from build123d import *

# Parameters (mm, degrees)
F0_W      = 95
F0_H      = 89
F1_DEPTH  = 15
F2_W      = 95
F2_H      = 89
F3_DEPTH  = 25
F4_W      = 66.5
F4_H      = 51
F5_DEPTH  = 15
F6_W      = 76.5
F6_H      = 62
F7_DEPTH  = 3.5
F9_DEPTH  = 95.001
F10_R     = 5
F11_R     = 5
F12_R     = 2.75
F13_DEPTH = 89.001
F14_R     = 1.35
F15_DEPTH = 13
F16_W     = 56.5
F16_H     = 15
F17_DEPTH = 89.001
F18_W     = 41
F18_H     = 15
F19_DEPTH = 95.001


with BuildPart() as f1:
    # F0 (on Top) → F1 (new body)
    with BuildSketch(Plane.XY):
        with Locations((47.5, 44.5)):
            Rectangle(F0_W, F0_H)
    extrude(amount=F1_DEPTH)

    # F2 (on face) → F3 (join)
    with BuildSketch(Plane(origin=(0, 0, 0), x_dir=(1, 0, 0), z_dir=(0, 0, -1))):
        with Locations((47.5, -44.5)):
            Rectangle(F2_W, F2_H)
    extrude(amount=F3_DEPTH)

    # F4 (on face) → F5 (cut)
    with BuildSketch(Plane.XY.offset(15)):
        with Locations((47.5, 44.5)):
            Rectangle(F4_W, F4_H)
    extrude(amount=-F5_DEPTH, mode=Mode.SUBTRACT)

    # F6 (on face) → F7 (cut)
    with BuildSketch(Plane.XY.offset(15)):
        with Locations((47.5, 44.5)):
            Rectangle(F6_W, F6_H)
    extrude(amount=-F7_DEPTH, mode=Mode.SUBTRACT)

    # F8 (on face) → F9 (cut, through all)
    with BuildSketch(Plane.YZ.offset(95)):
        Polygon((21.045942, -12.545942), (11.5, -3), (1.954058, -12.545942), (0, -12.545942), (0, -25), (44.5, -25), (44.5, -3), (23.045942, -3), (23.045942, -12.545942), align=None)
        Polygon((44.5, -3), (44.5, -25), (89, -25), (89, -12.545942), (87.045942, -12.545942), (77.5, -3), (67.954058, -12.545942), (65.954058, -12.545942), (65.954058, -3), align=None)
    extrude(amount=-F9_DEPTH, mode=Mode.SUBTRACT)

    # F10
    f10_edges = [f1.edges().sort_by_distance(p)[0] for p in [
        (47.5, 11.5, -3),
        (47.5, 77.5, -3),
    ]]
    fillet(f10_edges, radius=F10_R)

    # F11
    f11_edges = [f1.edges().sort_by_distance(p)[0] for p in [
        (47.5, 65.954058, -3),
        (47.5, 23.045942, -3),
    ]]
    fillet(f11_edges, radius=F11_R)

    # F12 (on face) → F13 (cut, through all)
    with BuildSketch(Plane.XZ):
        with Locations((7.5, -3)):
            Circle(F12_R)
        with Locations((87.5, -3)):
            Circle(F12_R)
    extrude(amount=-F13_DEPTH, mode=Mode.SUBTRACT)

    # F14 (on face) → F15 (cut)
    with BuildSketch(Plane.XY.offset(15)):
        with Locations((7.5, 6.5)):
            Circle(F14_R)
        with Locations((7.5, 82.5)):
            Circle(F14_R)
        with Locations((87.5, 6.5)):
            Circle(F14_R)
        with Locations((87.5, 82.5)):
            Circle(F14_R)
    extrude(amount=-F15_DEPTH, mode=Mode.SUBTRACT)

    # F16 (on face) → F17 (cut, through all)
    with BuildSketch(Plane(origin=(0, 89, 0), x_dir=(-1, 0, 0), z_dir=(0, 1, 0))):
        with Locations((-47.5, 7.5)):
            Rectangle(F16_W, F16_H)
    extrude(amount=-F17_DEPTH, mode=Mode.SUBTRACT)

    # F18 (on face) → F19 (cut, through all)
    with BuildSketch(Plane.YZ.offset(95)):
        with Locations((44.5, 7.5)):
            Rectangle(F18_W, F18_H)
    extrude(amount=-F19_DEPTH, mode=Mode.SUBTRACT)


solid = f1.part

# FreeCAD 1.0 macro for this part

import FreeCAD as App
import Part
import Sketcher

V = App.Vector
Q = App.Units.Quantity


def edges_at(feature, points):
    """Names of the edges that pass closest to the given points."""
    edges = feature.Shape.Edges
    near = lambda p: min(range(len(edges)), key=lambda i: edges[i].distToShape(Part.Vertex(*p))[0])
    return sorted({f"Edge{near(p) + 1}" for p in points})


def add_polygon(sketch, points):
    """Adds a closed chain of lines whose ends are joined by coincident constraints."""
    first, n = sketch.GeometryCount, len(points)
    for a, b in zip(points, points[1:] + points[:1]):
        sketch.addGeometry(Part.LineSegment(App.Vector(*a, 0), App.Vector(*b, 0)), False)
    for i in range(n):
        sketch.addConstraint(Sketcher.Constraint("Coincident", first + i, 2, first + (i + 1) % n, 1))

doc = App.newDocument("Part")
body = doc.addObject("PartDesign::Body", "Body")

# Sketch on XY plane
sketch1 = doc.addObject("Sketcher::SketchObject", "Sketch")
body.addObject(sketch1)
sketch1.AttachmentSupport = (doc.XY_Plane, [""])
sketch1.MapMode = "FlatFace"
add_polygon(sketch1, [(0, 89), (0, 0), (95, 0), (95, 89)])  # lines 0-3
sketch1.addConstraint([
    Sketcher.Constraint("Vertical", 0),
    Sketcher.Constraint("Horizontal", 1),
    Sketcher.Constraint("Vertical", 2),
    Sketcher.Constraint("Horizontal", 3),
    Sketcher.Constraint("Coincident", 0, 2, -1, 1),
    Sketcher.Constraint("DistanceX", 1, 1, 1, 2, Q("95 mm")),
    Sketcher.Constraint("DistanceY", 0, 2, 0, 1, Q("89 mm")),
])
pad1 = doc.addObject("PartDesign::Pad", "Pad")
body.addObject(pad1)
pad1.Profile = sketch1
pad1.Length = 15

# Sketch on XY plane
sketch2 = doc.addObject("Sketcher::SketchObject", "Sketch001")
body.addObject(sketch2)
sketch2.AttachmentSupport = (doc.XY_Plane, [""])
sketch2.MapMode = "FlatFace"
add_polygon(sketch2, [(0, 0), (0, 89), (95, 89), (95, 0)])  # lines 0-3
sketch2.addConstraint([
    Sketcher.Constraint("Vertical", 0),
    Sketcher.Constraint("Horizontal", 1),
    Sketcher.Constraint("Vertical", 2),
    Sketcher.Constraint("Horizontal", 3),
    Sketcher.Constraint("Coincident", 3, 2, -1, 1),
    Sketcher.Constraint("DistanceX", 1, 1, 1, 2, Q("95 mm")),
    Sketcher.Constraint("DistanceY", 0, 1, 0, 2, Q("89 mm")),
])
pad2 = doc.addObject("PartDesign::Pad", "Pad001")
body.addObject(pad2)
pad2.Profile = sketch2
pad2.Length = 25
pad2.Reversed = True

# Sketch on XY plane
sketch3 = doc.addObject("Sketcher::SketchObject", "Sketch002")
body.addObject(sketch3)
sketch3.AttachmentSupport = (doc.XY_Plane, [""])
sketch3.MapMode = "FlatFace"
sketch3.AttachmentOffset = App.Placement(V(0, 0, 15), App.Rotation())
add_polygon(sketch3, [(14, 70), (14, 19), (81, 19), (81, 70)])  # lines 0-3
sketch3.addConstraint([
    Sketcher.Constraint("Vertical", 0),
    Sketcher.Constraint("Horizontal", 1),
    Sketcher.Constraint("Vertical", 2),
    Sketcher.Constraint("Horizontal", 3),
    Sketcher.Constraint("DistanceY", 0, 2, 0, 1, Q("51 mm")),
    Sketcher.Constraint("DistanceX", 1, 1, 1, 2, Q("66.5 mm")),
    Sketcher.Constraint("DistanceY", -1, 1, 0, 2, Q("19 mm")),
    Sketcher.Constraint("DistanceX", -1, 1, 0, 2, Q("14.25 mm")),
])
pocket1 = doc.addObject("PartDesign::Pocket", "Pocket")
body.addObject(pocket1)
pocket1.Profile = sketch3
pocket1.Length = 15

# Sketch on XY plane
sketch4 = doc.addObject("Sketcher::SketchObject", "Sketch003")
body.addObject(sketch4)
sketch4.AttachmentSupport = (doc.XY_Plane, [""])
sketch4.MapMode = "FlatFace"
sketch4.AttachmentOffset = App.Placement(V(0, 0, 15), App.Rotation())
add_polygon(sketch4, [(9, 76), (9, 14), (86, 14), (86, 76)])  # lines 0-3
sketch4.addConstraint([
    Sketcher.Constraint("Vertical", 0),
    Sketcher.Constraint("Horizontal", 1),
    Sketcher.Constraint("Vertical", 2),
    Sketcher.Constraint("Horizontal", 3),
    Sketcher.Constraint("DistanceY", 0, 2, 0, 1, Q("62 mm")),
    Sketcher.Constraint("DistanceX", 1, 1, 1, 2, Q("76.5 mm")),
    Sketcher.Constraint("DistanceY", -1, 1, 0, 2, Q("13.5 mm")),
    Sketcher.Constraint("DistanceX", -1, 1, 0, 2, Q("9.25 mm")),
])
pocket2 = doc.addObject("PartDesign::Pocket", "Pocket001")
body.addObject(pocket2)
pocket2.Profile = sketch4
pocket2.Length = 3.5

# Sketch on YZ plane
sketch5 = doc.addObject("Sketcher::SketchObject", "Sketch004")
body.addObject(sketch5)
sketch5.AttachmentSupport = (doc.YZ_Plane, [""])
sketch5.MapMode = "FlatFace"
sketch5.AttachmentOffset = App.Placement(V(0, 0, 95), App.Rotation())
add_polygon(sketch5, [(21, -12.5), (11.5, -3), (2, -12.5), (0, -12.5), (0, -25), (89, -25), (89, -12.5), (87, -12.5), (77.5, -3), (68, -12.5), (66, -12.5), (66, -3), (23, -3), (23, -12.5)])  # lines 0-13
sketch5.addConstraint([
    Sketcher.Constraint("Horizontal", 2),
    Sketcher.Constraint("Vertical", 3),
    Sketcher.Constraint("Horizontal", 4),
    Sketcher.Constraint("Vertical", 5),
    Sketcher.Constraint("Horizontal", 6),
    Sketcher.Constraint("Horizontal", 9),
    Sketcher.Constraint("Vertical", 10),
    Sketcher.Constraint("Horizontal", 11),
    Sketcher.Constraint("Vertical", 12),
    Sketcher.Constraint("Horizontal", 13),
    Sketcher.Constraint("PointOnObject", 2, 2, -2),
    Sketcher.Constraint("Perpendicular", 0, 1),
    Sketcher.Constraint("Perpendicular", 1, 7),
    Sketcher.Constraint("Perpendicular", 7, 8),
    Sketcher.Constraint("Horizontal", 2, 2, 5, 2),
    Sketcher.Constraint("Horizontal", 0, 2, 7, 2),
    Sketcher.Constraint("Horizontal", 6, 2, 8, 2),
    Sketcher.Constraint("Horizontal", 7, 2, 10, 2),
    Sketcher.Constraint("Horizontal", 9, 2, 12, 2),
    Sketcher.Constraint("Equal", 2, 6),
    Sketcher.Constraint("Equal", 9, 13),
    Sketcher.Constraint("Equal", 0, 1),
    Sketcher.Constraint("DistanceX", 4, 1, 4, 2, Q("89 mm")),
    Sketcher.Constraint("DistanceX", 9, 2, 9, 1, Q("2 mm")),
    Sketcher.Constraint("DistanceY", 0, 2, -1, 1, Q("3 mm")),
    Sketcher.Constraint("DistanceY", 3, 2, -1, 1, Q("25 mm")),
    Sketcher.Constraint("DistanceX", 0, 2, 7, 2, Q("66 mm")),
    Sketcher.Constraint("Distance", 0, Q("13.500001 mm")),
])
pocket3 = doc.addObject("PartDesign::Pocket", "Pocket002")
body.addObject(pocket3)
pocket3.Profile = sketch5
pocket3.Type = "ThroughAll"
doc.recompute()

fillet = doc.addObject("PartDesign::Fillet", "Fillet")
body.addObject(fillet)
fillet.Base = (pocket3, edges_at(pocket3, [(47.5, 11.5, -3), (47.5, 77.5, -3)]))
fillet.Radius = 5
doc.recompute()

fillet2 = doc.addObject("PartDesign::Fillet", "Fillet001")
body.addObject(fillet2)
fillet2.Base = (fillet, edges_at(fillet, [(47.5, 65.954, -3), (47.5, 23.046, -3)]))
fillet2.Radius = 5

# Sketch on XZ plane
sketch6 = doc.addObject("Sketcher::SketchObject", "Sketch005")
body.addObject(sketch6)
sketch6.AttachmentSupport = (doc.XZ_Plane, [""])
sketch6.MapMode = "FlatFace"
sketch6.addGeometry([
    Part.Circle(V(7.5, -3, 0), V(0, 0, 1), 2.8),
    Part.Circle(V(87.5, -3, 0), V(0, 0, 1), 2.8),
], False)
sketch6.addConstraint([
    Sketcher.Constraint("Equal", 0, 1),
    Sketcher.Constraint("Horizontal", 0, 3, 1, 3),
    Sketcher.Constraint("Diameter", 0, Q("5.5 mm")),
    Sketcher.Constraint("DistanceY", 0, 3, -1, 1, Q("3 mm")),
    Sketcher.Constraint("DistanceX", 0, 3, 1, 3, Q("80 mm")),
    Sketcher.Constraint("DistanceX", -1, 1, 0, 3, Q("7.5 mm")),
])
pocket4 = doc.addObject("PartDesign::Pocket", "Pocket003")
body.addObject(pocket4)
pocket4.Profile = sketch6
pocket4.Type = "ThroughAll"

# Sketch on XY plane
sketch7 = doc.addObject("Sketcher::SketchObject", "Sketch006")
body.addObject(sketch7)
sketch7.AttachmentSupport = (doc.XY_Plane, [""])
sketch7.MapMode = "FlatFace"
sketch7.AttachmentOffset = App.Placement(V(0, 0, 15), App.Rotation())
sketch7.addGeometry([
    Part.Circle(V(7.5, 6.5, 0), V(0, 0, 1), 1.4),
    Part.Circle(V(7.5, 82.5, 0), V(0, 0, 1), 1.4),
    Part.Circle(V(87.5, 6.5, 0), V(0, 0, 1), 1.4),
    Part.Circle(V(87.5, 82.5, 0), V(0, 0, 1), 1.4),
], False)
sketch7.addConstraint([
    Sketcher.Constraint("Equal", 0, 1),
    Sketcher.Constraint("Equal", 1, 2),
    Sketcher.Constraint("Equal", 2, 3),
    Sketcher.Constraint("Horizontal", 0, 3, 2, 3),
    Sketcher.Constraint("Horizontal", 1, 3, 3, 3),
    Sketcher.Constraint("Vertical", 0, 3, 1, 3),
    Sketcher.Constraint("Vertical", 2, 3, 3, 3),
    Sketcher.Constraint("Diameter", 0, Q("2.7 mm")),
    Sketcher.Constraint("DistanceY", 0, 3, 1, 3, Q("76 mm")),
    Sketcher.Constraint("DistanceX", 0, 3, 2, 3, Q("80 mm")),
    Sketcher.Constraint("DistanceX", -1, 1, 0, 3, Q("7.5 mm")),
    Sketcher.Constraint("DistanceY", -1, 1, 0, 3, Q("6.5 mm")),
])
pocket5 = doc.addObject("PartDesign::Pocket", "Pocket004")
body.addObject(pocket5)
pocket5.Profile = sketch7
pocket5.Length = 13

# Sketch on XZ plane
sketch8 = doc.addObject("Sketcher::SketchObject", "Sketch007")
body.addObject(sketch8)
sketch8.AttachmentSupport = (doc.XZ_Plane, [""])
sketch8.MapMode = "FlatFace"
sketch8.AttachmentOffset = App.Placement(V(0, 0, -89), App.Rotation())
add_polygon(sketch8, [(76, 15), (76, 0), (19, 0), (19, 15)])  # lines 0-3
sketch8.addConstraint([
    Sketcher.Constraint("Vertical", 0),
    Sketcher.Constraint("Horizontal", 1),
    Sketcher.Constraint("Vertical", 2),
    Sketcher.Constraint("Horizontal", 3),
    Sketcher.Constraint("PointOnObject", 0, 2, -1),
    Sketcher.Constraint("DistanceY", 0, 2, 0, 1, Q("15 mm")),
    Sketcher.Constraint("DistanceX", 1, 2, 1, 1, Q("56.5 mm")),
    Sketcher.Constraint("DistanceX", -1, 1, 0, 2, Q("75.75 mm")),
])
pocket6 = doc.addObject("PartDesign::Pocket", "Pocket005")
body.addObject(pocket6)
pocket6.Profile = sketch8
pocket6.Type = "ThroughAll"
pocket6.Reversed = True

# Sketch on YZ plane
sketch9 = doc.addObject("Sketcher::SketchObject", "Sketch008")
body.addObject(sketch9)
sketch9.AttachmentSupport = (doc.YZ_Plane, [""])
sketch9.MapMode = "FlatFace"
sketch9.AttachmentOffset = App.Placement(V(0, 0, 95), App.Rotation())
add_polygon(sketch9, [(24, 15), (24, 0), (65, 0), (65, 15)])  # lines 0-3
sketch9.addConstraint([
    Sketcher.Constraint("Vertical", 0),
    Sketcher.Constraint("Horizontal", 1),
    Sketcher.Constraint("Vertical", 2),
    Sketcher.Constraint("Horizontal", 3),
    Sketcher.Constraint("PointOnObject", 0, 2, -1),
    Sketcher.Constraint("DistanceX", 1, 1, 1, 2, Q("41 mm")),
    Sketcher.Constraint("DistanceY", 0, 2, 0, 1, Q("15 mm")),
    Sketcher.Constraint("DistanceX", -1, 1, 0, 2, Q("24 mm")),
])
pocket7 = doc.addObject("PartDesign::Pocket", "Pocket006")
body.addObject(pocket7)
pocket7.Profile = sketch9
pocket7.Type = "ThroughAll"

doc.recompute()
